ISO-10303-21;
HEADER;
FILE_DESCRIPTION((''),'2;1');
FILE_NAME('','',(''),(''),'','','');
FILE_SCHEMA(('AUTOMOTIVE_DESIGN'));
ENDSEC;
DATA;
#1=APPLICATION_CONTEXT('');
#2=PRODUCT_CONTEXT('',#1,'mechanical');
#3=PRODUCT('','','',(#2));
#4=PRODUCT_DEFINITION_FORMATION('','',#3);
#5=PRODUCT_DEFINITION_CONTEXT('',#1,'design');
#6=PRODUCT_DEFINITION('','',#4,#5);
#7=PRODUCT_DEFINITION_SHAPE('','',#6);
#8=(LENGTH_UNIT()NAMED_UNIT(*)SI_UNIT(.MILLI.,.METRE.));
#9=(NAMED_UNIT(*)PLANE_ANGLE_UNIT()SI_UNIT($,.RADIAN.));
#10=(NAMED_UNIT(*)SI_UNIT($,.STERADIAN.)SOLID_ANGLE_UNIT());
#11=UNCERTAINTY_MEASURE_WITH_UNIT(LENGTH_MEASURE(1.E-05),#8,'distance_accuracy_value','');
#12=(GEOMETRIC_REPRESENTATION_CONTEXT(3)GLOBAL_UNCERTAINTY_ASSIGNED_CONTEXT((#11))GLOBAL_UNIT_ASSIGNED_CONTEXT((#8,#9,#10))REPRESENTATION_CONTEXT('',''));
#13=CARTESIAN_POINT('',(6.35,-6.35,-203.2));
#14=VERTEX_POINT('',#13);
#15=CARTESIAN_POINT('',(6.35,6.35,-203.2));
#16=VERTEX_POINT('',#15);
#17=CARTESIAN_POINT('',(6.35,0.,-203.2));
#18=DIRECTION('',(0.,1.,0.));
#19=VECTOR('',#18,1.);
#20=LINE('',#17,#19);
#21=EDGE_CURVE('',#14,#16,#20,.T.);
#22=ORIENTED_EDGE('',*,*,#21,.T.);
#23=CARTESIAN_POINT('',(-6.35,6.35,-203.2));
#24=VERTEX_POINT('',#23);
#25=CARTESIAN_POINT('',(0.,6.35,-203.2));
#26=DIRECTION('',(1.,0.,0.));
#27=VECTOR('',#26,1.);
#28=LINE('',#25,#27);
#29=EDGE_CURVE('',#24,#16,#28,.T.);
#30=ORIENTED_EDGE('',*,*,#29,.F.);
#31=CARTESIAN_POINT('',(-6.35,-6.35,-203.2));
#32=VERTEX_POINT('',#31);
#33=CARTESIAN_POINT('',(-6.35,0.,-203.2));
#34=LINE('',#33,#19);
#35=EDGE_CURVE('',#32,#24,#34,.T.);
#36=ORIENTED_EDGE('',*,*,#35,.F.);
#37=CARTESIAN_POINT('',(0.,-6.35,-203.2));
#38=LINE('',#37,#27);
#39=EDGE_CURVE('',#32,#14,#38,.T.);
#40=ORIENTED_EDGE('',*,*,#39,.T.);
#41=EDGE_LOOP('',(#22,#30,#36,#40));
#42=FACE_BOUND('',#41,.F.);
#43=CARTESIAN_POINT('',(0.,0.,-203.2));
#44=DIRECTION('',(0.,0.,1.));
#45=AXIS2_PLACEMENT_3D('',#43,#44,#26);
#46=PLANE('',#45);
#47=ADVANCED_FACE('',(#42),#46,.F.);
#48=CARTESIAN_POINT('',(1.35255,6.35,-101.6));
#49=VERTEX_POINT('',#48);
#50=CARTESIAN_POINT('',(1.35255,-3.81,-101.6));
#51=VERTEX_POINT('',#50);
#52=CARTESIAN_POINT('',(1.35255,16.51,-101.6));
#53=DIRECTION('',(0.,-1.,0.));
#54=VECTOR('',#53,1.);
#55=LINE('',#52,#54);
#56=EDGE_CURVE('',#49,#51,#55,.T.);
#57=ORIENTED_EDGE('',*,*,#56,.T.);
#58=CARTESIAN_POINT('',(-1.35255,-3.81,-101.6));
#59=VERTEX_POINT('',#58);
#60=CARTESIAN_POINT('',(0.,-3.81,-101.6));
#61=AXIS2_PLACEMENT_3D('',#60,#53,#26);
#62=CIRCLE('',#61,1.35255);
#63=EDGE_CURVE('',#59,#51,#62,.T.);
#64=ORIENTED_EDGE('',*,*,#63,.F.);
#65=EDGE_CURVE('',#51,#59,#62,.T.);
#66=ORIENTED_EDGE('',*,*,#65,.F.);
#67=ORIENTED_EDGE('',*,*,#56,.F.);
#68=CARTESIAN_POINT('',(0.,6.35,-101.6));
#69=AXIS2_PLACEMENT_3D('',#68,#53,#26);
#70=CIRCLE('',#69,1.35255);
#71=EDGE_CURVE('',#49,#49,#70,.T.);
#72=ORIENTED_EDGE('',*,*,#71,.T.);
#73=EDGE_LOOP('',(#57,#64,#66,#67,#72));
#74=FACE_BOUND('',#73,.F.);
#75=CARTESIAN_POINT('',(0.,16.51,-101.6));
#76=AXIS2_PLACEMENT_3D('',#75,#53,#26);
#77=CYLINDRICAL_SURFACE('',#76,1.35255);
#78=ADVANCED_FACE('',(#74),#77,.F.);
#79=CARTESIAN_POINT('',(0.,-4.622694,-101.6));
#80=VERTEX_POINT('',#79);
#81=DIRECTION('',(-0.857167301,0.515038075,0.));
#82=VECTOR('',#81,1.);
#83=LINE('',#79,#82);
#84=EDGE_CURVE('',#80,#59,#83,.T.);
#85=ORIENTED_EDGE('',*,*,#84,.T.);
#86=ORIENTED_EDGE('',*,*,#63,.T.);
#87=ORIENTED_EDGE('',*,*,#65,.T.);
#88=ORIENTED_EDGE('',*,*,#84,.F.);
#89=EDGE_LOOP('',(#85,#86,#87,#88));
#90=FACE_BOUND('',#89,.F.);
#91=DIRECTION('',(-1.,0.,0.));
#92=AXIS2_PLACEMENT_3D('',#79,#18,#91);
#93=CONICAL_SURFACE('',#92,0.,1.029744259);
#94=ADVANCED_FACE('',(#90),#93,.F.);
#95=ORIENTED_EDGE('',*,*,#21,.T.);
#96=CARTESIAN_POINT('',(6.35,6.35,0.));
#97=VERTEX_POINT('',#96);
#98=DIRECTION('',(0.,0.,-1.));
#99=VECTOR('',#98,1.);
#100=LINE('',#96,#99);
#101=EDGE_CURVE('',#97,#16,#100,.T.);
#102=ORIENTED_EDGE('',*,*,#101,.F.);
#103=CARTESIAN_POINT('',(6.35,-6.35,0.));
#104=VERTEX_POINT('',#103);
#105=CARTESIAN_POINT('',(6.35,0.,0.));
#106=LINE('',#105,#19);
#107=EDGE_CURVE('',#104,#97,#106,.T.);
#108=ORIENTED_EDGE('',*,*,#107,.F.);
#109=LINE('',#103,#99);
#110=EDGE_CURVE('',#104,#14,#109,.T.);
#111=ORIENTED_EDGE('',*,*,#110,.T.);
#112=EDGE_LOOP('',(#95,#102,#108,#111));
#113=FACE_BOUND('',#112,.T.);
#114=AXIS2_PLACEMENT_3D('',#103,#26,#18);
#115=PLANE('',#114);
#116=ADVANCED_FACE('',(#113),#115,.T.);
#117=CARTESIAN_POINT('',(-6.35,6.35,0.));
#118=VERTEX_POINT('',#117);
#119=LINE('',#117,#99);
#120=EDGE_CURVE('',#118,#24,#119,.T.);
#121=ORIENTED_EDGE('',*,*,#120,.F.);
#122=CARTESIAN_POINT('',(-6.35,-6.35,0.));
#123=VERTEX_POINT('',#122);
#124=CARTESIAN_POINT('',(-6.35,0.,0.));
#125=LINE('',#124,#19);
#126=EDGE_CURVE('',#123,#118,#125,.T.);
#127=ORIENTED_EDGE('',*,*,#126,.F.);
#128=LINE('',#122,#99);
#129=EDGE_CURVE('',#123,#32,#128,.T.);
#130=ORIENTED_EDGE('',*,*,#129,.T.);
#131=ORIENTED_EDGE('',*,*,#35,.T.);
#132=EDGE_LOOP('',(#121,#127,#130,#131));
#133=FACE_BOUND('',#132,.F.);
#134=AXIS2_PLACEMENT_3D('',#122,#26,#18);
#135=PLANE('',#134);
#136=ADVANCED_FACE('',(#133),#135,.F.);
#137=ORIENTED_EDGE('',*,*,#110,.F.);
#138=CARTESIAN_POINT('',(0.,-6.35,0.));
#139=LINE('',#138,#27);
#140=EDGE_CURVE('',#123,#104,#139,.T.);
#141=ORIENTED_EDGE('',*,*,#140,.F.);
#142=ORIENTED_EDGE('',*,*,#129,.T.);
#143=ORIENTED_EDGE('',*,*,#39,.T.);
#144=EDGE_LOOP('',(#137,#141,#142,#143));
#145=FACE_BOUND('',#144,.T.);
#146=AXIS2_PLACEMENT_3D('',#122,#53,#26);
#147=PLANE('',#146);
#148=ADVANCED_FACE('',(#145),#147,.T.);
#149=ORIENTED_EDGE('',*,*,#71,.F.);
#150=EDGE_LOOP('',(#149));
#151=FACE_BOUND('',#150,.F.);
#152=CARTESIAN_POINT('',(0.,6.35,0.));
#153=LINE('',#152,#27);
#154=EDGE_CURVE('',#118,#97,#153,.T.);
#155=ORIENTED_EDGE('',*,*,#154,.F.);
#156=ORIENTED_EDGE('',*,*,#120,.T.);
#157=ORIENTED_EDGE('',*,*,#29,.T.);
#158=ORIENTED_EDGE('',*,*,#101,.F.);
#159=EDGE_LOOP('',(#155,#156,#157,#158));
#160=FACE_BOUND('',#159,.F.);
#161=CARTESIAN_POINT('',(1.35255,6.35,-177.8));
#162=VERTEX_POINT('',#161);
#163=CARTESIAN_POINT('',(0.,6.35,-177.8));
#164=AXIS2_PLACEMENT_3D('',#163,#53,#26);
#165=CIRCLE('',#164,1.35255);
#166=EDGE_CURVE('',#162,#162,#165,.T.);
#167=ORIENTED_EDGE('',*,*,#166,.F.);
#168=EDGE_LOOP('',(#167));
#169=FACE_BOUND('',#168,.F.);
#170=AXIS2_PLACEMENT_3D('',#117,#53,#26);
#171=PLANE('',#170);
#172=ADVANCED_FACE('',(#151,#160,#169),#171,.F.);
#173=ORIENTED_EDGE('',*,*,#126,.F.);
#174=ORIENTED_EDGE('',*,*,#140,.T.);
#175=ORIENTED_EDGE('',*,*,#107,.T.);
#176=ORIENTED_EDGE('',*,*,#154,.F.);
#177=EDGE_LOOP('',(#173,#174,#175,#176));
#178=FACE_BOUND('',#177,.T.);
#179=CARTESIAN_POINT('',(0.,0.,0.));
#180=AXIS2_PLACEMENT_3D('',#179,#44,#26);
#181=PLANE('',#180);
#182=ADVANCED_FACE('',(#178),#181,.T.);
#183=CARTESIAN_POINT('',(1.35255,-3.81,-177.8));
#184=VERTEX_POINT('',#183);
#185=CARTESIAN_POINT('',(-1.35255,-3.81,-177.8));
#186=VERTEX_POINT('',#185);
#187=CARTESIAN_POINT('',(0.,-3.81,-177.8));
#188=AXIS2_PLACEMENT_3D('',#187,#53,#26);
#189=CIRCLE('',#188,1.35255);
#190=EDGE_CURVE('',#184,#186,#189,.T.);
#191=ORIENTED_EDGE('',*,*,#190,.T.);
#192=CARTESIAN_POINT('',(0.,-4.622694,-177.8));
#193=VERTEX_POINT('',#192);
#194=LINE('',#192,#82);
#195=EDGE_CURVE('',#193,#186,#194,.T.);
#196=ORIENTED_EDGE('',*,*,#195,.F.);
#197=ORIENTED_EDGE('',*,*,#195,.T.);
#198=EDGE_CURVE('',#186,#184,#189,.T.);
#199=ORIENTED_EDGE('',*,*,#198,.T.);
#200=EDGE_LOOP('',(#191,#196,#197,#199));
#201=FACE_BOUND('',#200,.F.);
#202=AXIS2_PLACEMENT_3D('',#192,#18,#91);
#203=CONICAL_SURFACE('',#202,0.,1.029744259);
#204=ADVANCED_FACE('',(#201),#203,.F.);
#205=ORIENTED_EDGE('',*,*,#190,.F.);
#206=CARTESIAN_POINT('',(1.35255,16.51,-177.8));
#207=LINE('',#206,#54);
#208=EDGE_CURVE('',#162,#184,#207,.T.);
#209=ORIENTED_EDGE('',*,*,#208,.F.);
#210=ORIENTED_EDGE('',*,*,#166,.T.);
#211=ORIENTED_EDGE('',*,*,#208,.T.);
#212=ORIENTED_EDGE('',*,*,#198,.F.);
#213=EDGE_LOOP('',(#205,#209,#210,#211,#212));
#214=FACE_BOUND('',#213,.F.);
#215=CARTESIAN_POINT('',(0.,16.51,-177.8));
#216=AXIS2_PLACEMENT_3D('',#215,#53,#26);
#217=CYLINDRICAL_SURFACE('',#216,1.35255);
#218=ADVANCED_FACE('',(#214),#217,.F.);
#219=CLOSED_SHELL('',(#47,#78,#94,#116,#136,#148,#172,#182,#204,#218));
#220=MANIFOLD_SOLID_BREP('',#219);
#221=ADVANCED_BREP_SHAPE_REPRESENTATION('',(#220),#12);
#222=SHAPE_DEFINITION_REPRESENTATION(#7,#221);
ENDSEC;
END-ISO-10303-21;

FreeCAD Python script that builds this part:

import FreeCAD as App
import Part
import Sketcher

V = App.Vector
Q = App.Units.Quantity

doc = App.newDocument("Part")
params = doc.addObject("Spreadsheet::Sheet", "Params")
for row, (alias, value) in enumerate([
    ("sketch1_width", "0.5 in"),
    ("pad1_length", "8 in"),
    ("hole_diameter", "0.1065 in"),
    ("hole_depth", "0.4 in"),
], start=1):
    params.set(f"A{row}", alias)
    params.set(f"B{row}", "=" + value)
    params.setAlias(f"B{row}", alias)

body = doc.addObject("PartDesign::Body", "Body")

# Sketch on XY plane
sketch1 = body.newObject("Sketcher::SketchObject", "Sketch")
sketch1.AttachmentSupport = (doc.getObject("XY_Plane"), [""])
sketch1.MapMode = "FlatFace"
sketch1.addGeometry(Part.LineSegment(V(-6, 6, 0), V(-6, -6, 0)), False)
sketch1.addGeometry(Part.LineSegment(V(-6, -6, 0), V(6, -6, 0)), False)
sketch1.addGeometry(Part.LineSegment(V(6, -6, 0), V(6, 6, 0)), False)
sketch1.addGeometry(Part.LineSegment(V(6, 6, 0), V(-6, 6, 0)), False)
sketch1.addConstraint(Sketcher.Constraint("Coincident", 0, 2, 1, 1))
sketch1.addConstraint(Sketcher.Constraint("Coincident", 1, 2, 2, 1))
sketch1.addConstraint(Sketcher.Constraint("Coincident", 2, 2, 3, 1))
sketch1.addConstraint(Sketcher.Constraint("Coincident", 3, 2, 0, 1))
sketch1.addConstraint(Sketcher.Constraint("Vertical", 0))
sketch1.addConstraint(Sketcher.Constraint("Horizontal", 1))
sketch1.addConstraint(Sketcher.Constraint("Vertical", 2))
sketch1.addConstraint(Sketcher.Constraint("Horizontal", 3))
sketch1.addConstraint(Sketcher.Constraint("Symmetric", 0, 2, 2, 2, -1, 1))
sketch1.addConstraint(Sketcher.Constraint("Equal", 3, 0))
sketch1.addConstraint(Sketcher.Constraint("DistanceX", 1, 1, 1, 2, Q("0.5 in")))
sketch1.setExpression("Constraints[10]", "Params.sketch1_width")
pad1 = body.newObject("PartDesign::Pad", "Pad")
pad1.Profile = sketch1
pad1.setExpression("Length", "Params.pad1_length")
pad1.Reversed = True

# Sketch on XZ plane
sketch2 = body.newObject("Sketcher::SketchObject", "Sketch001")
sketch2.AttachmentSupport = (doc.getObject("XZ_Plane"), [""])
sketch2.MapMode = "FlatFace"
sketch2.AttachmentOffset = App.Placement(V(0, 0, -0.25 * 25.4), App.Rotation())
sketch2.addGeometry(Part.Circle(V(0, -101.6, 0), V(0, 0, 1), 1.4), False)
sketch2.addGeometry(Part.Circle(V(0, -177.8, 0), V(0, 0, 1), 1.4), False)
sketch2.addConstraint(Sketcher.Constraint("Equal", 0, 1))
sketch2.addConstraint(Sketcher.Constraint("PointOnObject", 0, 3, -2))
sketch2.addConstraint(Sketcher.Constraint("PointOnObject", 1, 3, -2))
sketch2.addConstraint(Sketcher.Constraint("DistanceY", 0, 3, -1, 1, Q("4 in")))
sketch2.addConstraint(Sketcher.Constraint("DistanceY", 1, 3, -1, 1, Q("7 in")))
sketch2.addConstraint(Sketcher.Constraint("Diameter", 0, Q("0.1065 in")))
doc.recompute()
hole = body.newObject("PartDesign::Hole", "Hole")
hole.Profile = sketch2
hole.ThreadType = "None"
hole.setExpression("Diameter", "Params.hole_diameter")
hole.DepthType = "Dimension"
hole.setExpression("Depth", "Params.hole_depth")
hole.DrillPoint = "Angled"
hole.DrillPointAngle = 118
hole.Reversed = True

doc.recompute()
